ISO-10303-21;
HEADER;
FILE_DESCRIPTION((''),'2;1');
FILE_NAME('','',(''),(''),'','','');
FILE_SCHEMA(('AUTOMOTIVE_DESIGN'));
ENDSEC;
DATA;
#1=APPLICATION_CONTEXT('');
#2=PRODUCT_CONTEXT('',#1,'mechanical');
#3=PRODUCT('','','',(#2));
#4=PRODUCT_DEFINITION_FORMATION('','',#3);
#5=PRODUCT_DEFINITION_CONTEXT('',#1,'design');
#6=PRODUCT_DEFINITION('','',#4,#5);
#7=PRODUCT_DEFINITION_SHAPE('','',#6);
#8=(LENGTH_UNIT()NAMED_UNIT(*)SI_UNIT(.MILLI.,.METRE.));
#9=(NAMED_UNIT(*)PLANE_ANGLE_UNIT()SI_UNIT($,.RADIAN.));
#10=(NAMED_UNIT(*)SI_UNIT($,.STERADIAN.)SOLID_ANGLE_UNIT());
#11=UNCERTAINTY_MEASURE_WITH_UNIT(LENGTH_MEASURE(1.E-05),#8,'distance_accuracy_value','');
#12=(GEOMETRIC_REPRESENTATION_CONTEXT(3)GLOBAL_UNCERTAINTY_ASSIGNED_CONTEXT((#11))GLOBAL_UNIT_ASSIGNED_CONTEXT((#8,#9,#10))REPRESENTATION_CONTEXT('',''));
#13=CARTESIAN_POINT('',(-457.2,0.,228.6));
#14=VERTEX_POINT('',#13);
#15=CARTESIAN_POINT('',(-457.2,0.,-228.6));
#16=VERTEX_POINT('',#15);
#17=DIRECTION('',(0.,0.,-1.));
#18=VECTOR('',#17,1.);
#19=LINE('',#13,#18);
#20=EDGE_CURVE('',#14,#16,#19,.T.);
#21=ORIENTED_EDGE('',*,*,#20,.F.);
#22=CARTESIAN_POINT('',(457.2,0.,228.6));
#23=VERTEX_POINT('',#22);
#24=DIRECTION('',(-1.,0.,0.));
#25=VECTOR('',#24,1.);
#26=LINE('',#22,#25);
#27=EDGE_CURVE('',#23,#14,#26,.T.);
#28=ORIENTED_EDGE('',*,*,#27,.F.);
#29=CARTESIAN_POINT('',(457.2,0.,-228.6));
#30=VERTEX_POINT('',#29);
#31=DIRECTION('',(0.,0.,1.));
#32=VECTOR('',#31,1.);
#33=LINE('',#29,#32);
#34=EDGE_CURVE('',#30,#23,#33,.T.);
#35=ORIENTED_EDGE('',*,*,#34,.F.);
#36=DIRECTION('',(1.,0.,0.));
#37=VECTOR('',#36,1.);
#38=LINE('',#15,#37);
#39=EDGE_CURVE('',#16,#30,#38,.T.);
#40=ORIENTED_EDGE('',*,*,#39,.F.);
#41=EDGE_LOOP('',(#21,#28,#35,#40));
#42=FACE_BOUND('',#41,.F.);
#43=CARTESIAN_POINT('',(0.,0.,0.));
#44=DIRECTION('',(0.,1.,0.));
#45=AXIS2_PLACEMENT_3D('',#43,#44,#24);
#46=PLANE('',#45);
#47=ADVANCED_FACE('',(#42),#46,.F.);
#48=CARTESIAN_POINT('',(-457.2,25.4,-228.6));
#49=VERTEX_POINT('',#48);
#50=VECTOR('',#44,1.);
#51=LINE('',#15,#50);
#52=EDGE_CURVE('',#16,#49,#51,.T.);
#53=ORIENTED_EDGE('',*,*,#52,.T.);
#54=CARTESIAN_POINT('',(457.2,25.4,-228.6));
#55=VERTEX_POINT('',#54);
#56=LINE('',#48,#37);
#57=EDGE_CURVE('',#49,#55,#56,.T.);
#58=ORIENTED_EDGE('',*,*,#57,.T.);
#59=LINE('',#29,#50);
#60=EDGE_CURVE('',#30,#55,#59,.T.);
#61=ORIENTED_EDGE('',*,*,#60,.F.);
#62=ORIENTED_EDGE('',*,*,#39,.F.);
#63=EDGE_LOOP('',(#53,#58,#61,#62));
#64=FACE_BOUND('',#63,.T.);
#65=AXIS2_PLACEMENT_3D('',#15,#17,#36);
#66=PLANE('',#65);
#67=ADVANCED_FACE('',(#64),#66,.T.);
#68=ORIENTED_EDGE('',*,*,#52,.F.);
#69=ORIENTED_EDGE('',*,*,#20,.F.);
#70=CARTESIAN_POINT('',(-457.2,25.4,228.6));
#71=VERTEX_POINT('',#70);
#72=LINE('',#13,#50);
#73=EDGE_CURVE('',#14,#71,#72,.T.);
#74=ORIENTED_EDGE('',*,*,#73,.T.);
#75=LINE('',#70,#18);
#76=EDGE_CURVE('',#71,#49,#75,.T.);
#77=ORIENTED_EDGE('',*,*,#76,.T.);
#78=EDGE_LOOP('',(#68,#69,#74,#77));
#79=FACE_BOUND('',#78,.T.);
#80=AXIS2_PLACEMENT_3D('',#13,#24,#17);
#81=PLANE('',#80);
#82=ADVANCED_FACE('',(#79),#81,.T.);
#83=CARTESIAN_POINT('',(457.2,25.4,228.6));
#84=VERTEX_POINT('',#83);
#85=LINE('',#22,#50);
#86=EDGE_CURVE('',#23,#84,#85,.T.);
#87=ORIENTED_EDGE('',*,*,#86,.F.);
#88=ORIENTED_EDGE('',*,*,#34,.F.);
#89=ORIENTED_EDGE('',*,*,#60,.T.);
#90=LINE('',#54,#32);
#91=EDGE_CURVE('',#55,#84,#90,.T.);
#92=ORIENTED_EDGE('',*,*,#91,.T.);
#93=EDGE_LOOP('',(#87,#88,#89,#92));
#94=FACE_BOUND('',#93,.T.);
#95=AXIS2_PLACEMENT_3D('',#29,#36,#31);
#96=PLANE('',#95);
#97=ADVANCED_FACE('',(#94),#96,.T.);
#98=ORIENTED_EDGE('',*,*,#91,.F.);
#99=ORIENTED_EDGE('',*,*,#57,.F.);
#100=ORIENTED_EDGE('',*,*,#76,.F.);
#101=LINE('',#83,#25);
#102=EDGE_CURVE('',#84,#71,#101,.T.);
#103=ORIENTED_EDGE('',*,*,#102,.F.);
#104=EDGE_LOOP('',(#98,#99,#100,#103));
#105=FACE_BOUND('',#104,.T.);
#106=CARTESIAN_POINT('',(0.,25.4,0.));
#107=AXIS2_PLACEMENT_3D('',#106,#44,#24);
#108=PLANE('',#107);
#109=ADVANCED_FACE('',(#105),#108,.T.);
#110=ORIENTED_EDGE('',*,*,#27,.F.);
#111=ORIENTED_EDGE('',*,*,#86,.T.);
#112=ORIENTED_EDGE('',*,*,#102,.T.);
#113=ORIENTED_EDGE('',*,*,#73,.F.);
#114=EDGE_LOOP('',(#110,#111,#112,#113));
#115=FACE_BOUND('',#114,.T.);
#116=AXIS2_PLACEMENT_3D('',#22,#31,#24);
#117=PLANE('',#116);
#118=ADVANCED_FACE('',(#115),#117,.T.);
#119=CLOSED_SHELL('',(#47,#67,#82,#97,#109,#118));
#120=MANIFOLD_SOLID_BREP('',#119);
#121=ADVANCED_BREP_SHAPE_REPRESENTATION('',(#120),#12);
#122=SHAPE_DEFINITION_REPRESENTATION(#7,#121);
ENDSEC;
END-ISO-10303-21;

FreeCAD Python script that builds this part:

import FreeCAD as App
import Part
import Sketcher
Q = App.Units.Quantity


def add_polygon(sketch, points):
    """Adds a closed chain of lines whose ends are joined by coincident constraints."""
    first, n = sketch.GeometryCount, len(points)
    for a, b in zip(points, points[1:] + points[:1]):
        sketch.addGeometry(Part.LineSegment(App.Vector(*a, 0), App.Vector(*b, 0)), False)
    for i in range(n):
        sketch.addConstraint(Sketcher.Constraint("Coincident", first + i, 2, first + (i + 1) % n, 1))

doc = App.newDocument("Part")
body = doc.addObject("PartDesign::Body", "Body")

sketch1 = body.newObject("Sketcher::SketchObject", "Sketch")
sketch1.AttachmentSupport = (doc.getObject("XZ_Plane"), [""])
sketch1.MapMode = "FlatFace"
add_polygon(sketch1, [(457.2, -228.6), (-457.2, -228.6), (-457.2, 228.6), (457.2, 228.6)])
sketch1.addConstraint(Sketcher.Constraint("Horizontal", 0))
sketch1.addConstraint(Sketcher.Constraint("Vertical", 1))
sketch1.addConstraint(Sketcher.Constraint("Horizontal", 2))
sketch1.addConstraint(Sketcher.Constraint("Vertical", 3))
sketch1.addConstraint(Sketcher.Constraint("Symmetric", 0, 2, 2, 2, -1, 1))
sketch1.addConstraint(Sketcher.Constraint("DistanceX", 0, 2, 0, 1, Q("36 in")))
sketch1.addConstraint(Sketcher.Constraint("DistanceY", 1, 1, 1, 2, Q("18 in")))
pad1 = body.newObject("PartDesign::Pad", "Pad")
pad1.Profile = sketch1
pad1.Length = Q("1 in")
pad1.Reversed = True

doc.recompute()
